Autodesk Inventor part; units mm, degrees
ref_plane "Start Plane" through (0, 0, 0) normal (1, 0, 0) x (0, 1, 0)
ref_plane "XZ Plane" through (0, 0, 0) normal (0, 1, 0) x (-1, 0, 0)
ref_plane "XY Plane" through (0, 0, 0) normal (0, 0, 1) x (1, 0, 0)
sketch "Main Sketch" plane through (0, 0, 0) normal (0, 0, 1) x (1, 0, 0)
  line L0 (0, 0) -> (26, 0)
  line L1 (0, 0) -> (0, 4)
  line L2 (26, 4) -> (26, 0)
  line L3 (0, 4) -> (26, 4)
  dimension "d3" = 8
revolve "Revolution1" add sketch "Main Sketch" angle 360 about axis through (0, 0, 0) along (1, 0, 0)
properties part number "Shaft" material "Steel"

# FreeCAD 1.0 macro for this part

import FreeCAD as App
import Part
import Sketcher


def add_polygon(sketch, points):
    """Adds a closed chain of lines whose ends are joined by coincident constraints."""
    first, n = sketch.GeometryCount, len(points)
    for a, b in zip(points, points[1:] + points[:1]):
        sketch.addGeometry(Part.LineSegment(App.Vector(*a, 0), App.Vector(*b, 0)), False)
    for i in range(n):
        sketch.addConstraint(Sketcher.Constraint("Coincident", first + i, 2, first + (i + 1) % n, 1))

doc = App.newDocument("Part")
body = doc.addObject("PartDesign::Body", "Body")

sketch1 = doc.addObject("Sketcher::SketchObject", "Sketch")
body.addObject(sketch1)
sketch1.AttachmentSupport = (doc.XY_Plane, [""])
sketch1.MapMode = "FlatFace"
add_polygon(sketch1, [(0, 4), (0, 0), (26, 0), (26, 4)])
sketch1.addConstraint([
    Sketcher.Constraint("Vertical", 0),
    Sketcher.Constraint("Horizontal", 1),
    Sketcher.Constraint("Vertical", 2),
    Sketcher.Constraint("Horizontal", 3),
    Sketcher.Constraint("Coincident", 0, 2, -1, 1),
    Sketcher.Constraint("DistanceX", 1, 1, 1, 2, 26.0),
    Sketcher.Constraint("DistanceY", 0, 2, 0, 1, 4.0),
])
revolution = doc.addObject("PartDesign::Revolution", "Revolution")
body.addObject(revolution)
revolution.Profile = sketch1
revolution.ReferenceAxis = (sketch1, ["H_Axis"])
revolution.Angle = 360

doc.recompute()
